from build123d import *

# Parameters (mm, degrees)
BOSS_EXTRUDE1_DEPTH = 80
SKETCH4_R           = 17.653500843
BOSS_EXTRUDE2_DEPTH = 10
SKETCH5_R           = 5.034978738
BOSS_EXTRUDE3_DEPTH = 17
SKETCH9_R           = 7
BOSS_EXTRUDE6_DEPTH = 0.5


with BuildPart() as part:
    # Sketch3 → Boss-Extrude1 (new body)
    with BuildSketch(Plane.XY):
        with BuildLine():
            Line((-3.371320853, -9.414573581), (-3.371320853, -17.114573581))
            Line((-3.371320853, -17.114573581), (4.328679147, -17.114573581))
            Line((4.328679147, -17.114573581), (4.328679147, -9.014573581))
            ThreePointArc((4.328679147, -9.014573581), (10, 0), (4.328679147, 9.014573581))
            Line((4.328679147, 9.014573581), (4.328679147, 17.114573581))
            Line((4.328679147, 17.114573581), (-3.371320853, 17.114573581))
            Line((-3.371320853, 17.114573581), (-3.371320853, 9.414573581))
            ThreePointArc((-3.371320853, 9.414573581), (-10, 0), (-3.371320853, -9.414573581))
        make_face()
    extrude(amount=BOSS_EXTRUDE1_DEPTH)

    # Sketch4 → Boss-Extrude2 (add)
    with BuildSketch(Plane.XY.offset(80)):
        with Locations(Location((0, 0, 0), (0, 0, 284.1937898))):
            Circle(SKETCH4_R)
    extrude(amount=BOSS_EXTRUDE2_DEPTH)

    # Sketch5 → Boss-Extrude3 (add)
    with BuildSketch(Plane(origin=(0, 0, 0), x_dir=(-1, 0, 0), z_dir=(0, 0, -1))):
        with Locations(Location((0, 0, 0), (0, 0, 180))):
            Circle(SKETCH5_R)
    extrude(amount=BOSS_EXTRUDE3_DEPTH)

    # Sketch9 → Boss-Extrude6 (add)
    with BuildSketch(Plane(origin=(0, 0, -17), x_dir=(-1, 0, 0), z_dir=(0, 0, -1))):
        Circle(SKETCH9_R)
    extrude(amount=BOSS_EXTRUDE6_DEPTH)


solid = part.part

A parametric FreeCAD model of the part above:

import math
import FreeCAD as App
import Part
import Sketcher

V = App.Vector

doc = App.newDocument("Part")
body = doc.addObject("PartDesign::Body", "Body")

# Sketch on XY plane
sketch1 = doc.addObject("Sketcher::SketchObject", "Sketch")
body.addObject(sketch1)
sketch1.AttachmentSupport = (doc.XY_Plane, [""])
sketch1.MapMode = "FlatFace"
sketch1.addGeometry([
    Part.LineSegment(V(-3, -9, 0), V(-3, -17, 0)),  # 0
    Part.LineSegment(V(-3, -17, 0), V(4, -17, 0)),  # 1
    Part.LineSegment(V(4, -17, 0), V(4, -9, 0)),  # 2
    Part.ArcOfCircle(Part.Circle(V(0, 0, 0), V(0, 0, 1), 10), math.radians(-64), math.radians(64)),  # 3
    Part.LineSegment(V(4, 9, 0), V(4, 17, 0)),  # 4
    Part.LineSegment(V(4, 17, 0), V(-3, 17, 0)),  # 5
    Part.LineSegment(V(-3, 17, 0), V(-3, 9, 0)),  # 6
    Part.ArcOfCircle(Part.Circle(V(0, 0, 0), V(0, 0, 1), 10), math.radians(110), math.radians(250)),  # 7
], False)
sketch1.addConstraint([
    Sketcher.Constraint("Coincident", 0, 2, 1, 1),
    Sketcher.Constraint("Coincident", 1, 2, 2, 1),
    Sketcher.Constraint("Coincident", 2, 2, 3, 1),
    Sketcher.Constraint("Coincident", 3, 2, 4, 1),
    Sketcher.Constraint("Coincident", 4, 2, 5, 1),
    Sketcher.Constraint("Coincident", 5, 2, 6, 1),
    Sketcher.Constraint("Coincident", 6, 2, 7, 1),
    Sketcher.Constraint("Coincident", 7, 2, 0, 1),
    Sketcher.Constraint("Vertical", 0),
    Sketcher.Constraint("Horizontal", 1),
    Sketcher.Constraint("Vertical", 2),
    Sketcher.Constraint("Vertical", 4),
    Sketcher.Constraint("Horizontal", 5),
    Sketcher.Constraint("Vertical", 6),
    Sketcher.Constraint("Coincident", 3, 3, -1, 1),
    Sketcher.Constraint("Coincident", 7, 3, -1, 1),
    Sketcher.Constraint("Equal", 3, 7),
    Sketcher.Constraint("Symmetric", 1, 2, 4, 2, -1),
    Sketcher.Constraint("Vertical", 0, 2, 5, 2),
    Sketcher.Constraint("Equal", 5, 0),
    Sketcher.Constraint("Radius", 3, 10.0),
    Sketcher.Constraint("DistanceX", 1, 1, 1, 2, 7.7),
    Sketcher.Constraint("DistanceY", 2, 1, 2, 2, 8.1),
])
pad1 = doc.addObject("PartDesign::Pad", "Pad")
body.addObject(pad1)
pad1.Profile = sketch1
pad1.Length = 80

# Sketch on XY plane
sketch2 = doc.addObject("Sketcher::SketchObject", "Sketch001")
body.addObject(sketch2)
sketch2.AttachmentSupport = (doc.XY_Plane, [""])
sketch2.MapMode = "FlatFace"
sketch2.AttachmentOffset = App.Placement(V(0, 0, 80), App.Rotation())
sketch2.addGeometry(Part.Circle(V(0, 0, 0), V(0, 0, 1), 18), False)
sketch2.addConstraint([
    Sketcher.Constraint("Coincident", 0, 3, -1, 1),
    Sketcher.Constraint("Diameter", 0, 35.307002),
])
pad2 = doc.addObject("PartDesign::Pad", "Pad001")
body.addObject(pad2)
pad2.Profile = sketch2
pad2.Length = 10

# Sketch on XY plane
sketch3 = doc.addObject("Sketcher::SketchObject", "Sketch002")
body.addObject(sketch3)
sketch3.AttachmentSupport = (doc.XY_Plane, [""])
sketch3.MapMode = "FlatFace"
sketch3.addGeometry(Part.Circle(V(0, 0, 0), V(0, 0, 1), 5), False)
sketch3.addConstraint([
    Sketcher.Constraint("Coincident", 0, 3, -1, 1),
    Sketcher.Constraint("Diameter", 0, 10.069957),
])
pad3 = doc.addObject("PartDesign::Pad", "Pad002")
body.addObject(pad3)
pad3.Profile = sketch3
pad3.Length = 17
pad3.Reversed = True

# Sketch on XY plane
sketch4 = doc.addObject("Sketcher::SketchObject", "Sketch003")
body.addObject(sketch4)
sketch4.AttachmentSupport = (doc.XY_Plane, [""])
sketch4.MapMode = "FlatFace"
sketch4.AttachmentOffset = App.Placement(V(0, 0, -17), App.Rotation())
sketch4.addGeometry(Part.Circle(V(0, 0, 0), V(0, 0, 1), 7), False)
sketch4.addConstraint([
    Sketcher.Constraint("Coincident", 0, 3, -1, 1),
    Sketcher.Constraint("Diameter", 0, 14.0),
])
pad4 = doc.addObject("PartDesign::Pad", "Pad003")
body.addObject(pad4)
pad4.Profile = sketch4
pad4.Length = 0.5
pad4.Reversed = True

doc.recompute()
